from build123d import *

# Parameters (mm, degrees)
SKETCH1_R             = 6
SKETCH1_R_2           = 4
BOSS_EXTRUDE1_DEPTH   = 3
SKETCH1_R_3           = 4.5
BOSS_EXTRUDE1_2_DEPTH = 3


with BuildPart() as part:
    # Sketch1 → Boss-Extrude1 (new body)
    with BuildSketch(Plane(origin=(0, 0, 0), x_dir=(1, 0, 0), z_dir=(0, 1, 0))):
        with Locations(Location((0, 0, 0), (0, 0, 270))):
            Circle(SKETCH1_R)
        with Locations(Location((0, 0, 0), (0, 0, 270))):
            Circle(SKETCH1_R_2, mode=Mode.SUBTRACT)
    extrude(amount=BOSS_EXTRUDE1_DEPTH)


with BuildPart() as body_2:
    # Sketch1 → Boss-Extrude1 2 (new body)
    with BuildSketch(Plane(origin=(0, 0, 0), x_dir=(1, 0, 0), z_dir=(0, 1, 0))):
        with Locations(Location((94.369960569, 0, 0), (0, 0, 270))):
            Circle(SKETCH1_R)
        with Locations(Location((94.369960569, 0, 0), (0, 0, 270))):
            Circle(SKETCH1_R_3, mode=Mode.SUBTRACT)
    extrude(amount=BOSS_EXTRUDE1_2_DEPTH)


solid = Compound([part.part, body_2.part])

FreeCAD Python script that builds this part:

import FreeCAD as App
import Part
import Sketcher

V = App.Vector

doc = App.newDocument("Part")
body = doc.addObject("PartDesign::Body", "Body")

# Sketch on XZ plane
sketch1 = body.newObject("Sketcher::SketchObject", "Sketch")
sketch1.AttachmentSupport = (doc.getObject("XZ_Plane"), [""])
sketch1.MapMode = "FlatFace"
sketch1.addGeometry(Part.Circle(V(0, 0, 0), V(0, 0, 1), 6), False)
sketch1.addGeometry(Part.Circle(V(0, 0, 0), V(0, 0, 1), 4), False)
sketch1.addConstraint(Sketcher.Constraint("Coincident", 0, 3, -1, 1))
sketch1.addConstraint(Sketcher.Constraint("Coincident", 1, 3, -1, 1))
sketch1.addConstraint(Sketcher.Constraint("Diameter", 0, 12.0))
sketch1.addConstraint(Sketcher.Constraint("Diameter", 1, 8.0))
pad1 = body.newObject("PartDesign::Pad", "Pad")
pad1.Profile = sketch1
pad1.Length = 3
pad1.Reversed = True
body2 = doc.addObject("PartDesign::Body", "Body001")

# Sketch on XZ plane
sketch2 = body2.newObject("Sketcher::SketchObject", "Sketch001")
sketch2.AttachmentSupport = (doc.getObject("XZ_Plane001"), [""])
sketch2.MapMode = "FlatFace"
sketch2.addGeometry(Part.Circle(V(94.4, 0, 0), V(0, 0, 1), 6), False)
sketch2.addGeometry(Part.Circle(V(94.4, 0, 0), V(0, 0, 1), 4.5), False)
sketch2.addConstraint(Sketcher.Constraint("Coincident", 1, 3, 0, 3))
sketch2.addConstraint(Sketcher.Constraint("PointOnObject", 0, 3, -1))
sketch2.addConstraint(Sketcher.Constraint("Diameter", 0, 12.0))
sketch2.addConstraint(Sketcher.Constraint("Diameter", 1, 9.0))
sketch2.addConstraint(Sketcher.Constraint("DistanceX", -1, 1, 0, 3, 94.369961))
pad2 = body2.newObject("PartDesign::Pad", "Pad001")
pad2.Profile = sketch2
pad2.Length = 3
pad2.Reversed = True

doc.recompute()
